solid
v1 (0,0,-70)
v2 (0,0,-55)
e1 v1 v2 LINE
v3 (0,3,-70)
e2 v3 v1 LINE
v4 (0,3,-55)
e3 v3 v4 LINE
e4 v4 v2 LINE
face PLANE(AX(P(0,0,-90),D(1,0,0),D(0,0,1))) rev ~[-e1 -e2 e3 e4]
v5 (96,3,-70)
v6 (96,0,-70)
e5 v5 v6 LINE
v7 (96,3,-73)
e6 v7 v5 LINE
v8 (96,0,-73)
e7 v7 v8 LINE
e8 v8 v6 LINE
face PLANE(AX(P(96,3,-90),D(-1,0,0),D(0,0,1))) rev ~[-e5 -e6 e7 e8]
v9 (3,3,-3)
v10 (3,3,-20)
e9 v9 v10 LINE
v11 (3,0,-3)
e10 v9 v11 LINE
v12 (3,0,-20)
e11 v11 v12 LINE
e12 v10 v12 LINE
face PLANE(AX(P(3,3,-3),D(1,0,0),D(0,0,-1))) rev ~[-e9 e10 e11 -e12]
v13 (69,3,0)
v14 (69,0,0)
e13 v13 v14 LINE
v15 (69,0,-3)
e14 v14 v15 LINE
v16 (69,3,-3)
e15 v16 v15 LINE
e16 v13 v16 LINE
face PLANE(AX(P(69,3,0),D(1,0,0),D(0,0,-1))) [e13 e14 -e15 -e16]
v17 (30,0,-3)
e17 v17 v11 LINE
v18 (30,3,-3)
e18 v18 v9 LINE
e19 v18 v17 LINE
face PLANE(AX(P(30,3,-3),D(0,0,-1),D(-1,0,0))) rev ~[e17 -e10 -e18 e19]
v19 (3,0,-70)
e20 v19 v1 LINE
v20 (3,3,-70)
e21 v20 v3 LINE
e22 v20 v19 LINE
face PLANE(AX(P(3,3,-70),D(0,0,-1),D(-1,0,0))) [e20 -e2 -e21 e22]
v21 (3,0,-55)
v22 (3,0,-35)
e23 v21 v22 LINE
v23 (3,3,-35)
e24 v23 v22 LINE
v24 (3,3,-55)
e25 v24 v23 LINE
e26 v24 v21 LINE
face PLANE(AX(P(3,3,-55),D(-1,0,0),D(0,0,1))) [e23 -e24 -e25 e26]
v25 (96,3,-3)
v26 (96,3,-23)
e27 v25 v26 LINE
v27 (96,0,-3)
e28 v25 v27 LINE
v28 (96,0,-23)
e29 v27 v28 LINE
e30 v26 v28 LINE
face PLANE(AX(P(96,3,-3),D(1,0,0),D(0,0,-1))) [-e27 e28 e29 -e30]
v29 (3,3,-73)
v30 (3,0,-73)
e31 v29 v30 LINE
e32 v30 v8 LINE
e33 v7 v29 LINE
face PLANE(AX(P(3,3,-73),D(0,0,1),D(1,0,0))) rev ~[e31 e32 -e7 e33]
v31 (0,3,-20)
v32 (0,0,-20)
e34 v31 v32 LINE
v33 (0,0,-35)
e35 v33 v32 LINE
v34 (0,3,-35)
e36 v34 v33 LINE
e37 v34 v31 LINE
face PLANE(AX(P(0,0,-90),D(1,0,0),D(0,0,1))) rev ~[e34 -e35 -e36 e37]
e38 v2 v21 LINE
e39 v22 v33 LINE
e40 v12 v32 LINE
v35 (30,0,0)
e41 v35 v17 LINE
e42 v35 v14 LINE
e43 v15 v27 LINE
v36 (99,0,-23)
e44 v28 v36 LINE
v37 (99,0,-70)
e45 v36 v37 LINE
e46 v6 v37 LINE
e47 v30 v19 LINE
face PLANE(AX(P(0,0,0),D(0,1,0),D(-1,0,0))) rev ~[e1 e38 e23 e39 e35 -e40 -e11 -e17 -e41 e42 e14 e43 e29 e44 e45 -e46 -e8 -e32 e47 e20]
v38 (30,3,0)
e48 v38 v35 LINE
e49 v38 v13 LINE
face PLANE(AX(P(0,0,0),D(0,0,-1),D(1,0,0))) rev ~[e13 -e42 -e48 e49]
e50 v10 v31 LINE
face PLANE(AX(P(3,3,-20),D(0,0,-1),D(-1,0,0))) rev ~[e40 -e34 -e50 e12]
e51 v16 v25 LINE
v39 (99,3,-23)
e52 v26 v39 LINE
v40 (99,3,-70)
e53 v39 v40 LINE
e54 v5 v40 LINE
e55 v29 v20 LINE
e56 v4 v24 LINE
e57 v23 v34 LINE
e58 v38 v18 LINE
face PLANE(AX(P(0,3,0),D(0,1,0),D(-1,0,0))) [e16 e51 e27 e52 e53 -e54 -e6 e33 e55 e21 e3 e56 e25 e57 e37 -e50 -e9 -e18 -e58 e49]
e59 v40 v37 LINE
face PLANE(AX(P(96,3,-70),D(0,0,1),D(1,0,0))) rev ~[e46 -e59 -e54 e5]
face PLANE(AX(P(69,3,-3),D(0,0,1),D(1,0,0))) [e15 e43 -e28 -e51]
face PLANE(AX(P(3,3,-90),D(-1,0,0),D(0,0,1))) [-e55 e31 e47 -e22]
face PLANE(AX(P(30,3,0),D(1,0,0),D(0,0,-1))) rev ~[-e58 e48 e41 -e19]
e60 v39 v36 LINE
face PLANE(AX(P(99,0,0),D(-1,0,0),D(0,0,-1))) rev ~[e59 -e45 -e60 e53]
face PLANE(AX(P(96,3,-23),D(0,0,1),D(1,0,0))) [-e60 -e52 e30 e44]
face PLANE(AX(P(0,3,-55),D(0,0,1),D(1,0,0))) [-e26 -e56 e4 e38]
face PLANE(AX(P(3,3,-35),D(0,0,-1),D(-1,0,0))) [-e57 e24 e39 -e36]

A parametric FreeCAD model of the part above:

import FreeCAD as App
import Part
import Sketcher
from FreeCAD import Vector


def add_polygon(sketch, points):
    """Adds a closed chain of lines whose ends are joined by coincident constraints."""
    first, n = sketch.GeometryCount, len(points)
    for a, b in zip(points, points[1:] + points[:1]):
        sketch.addGeometry(Part.LineSegment(App.Vector(*a, 0), App.Vector(*b, 0)), False)
    for i in range(n):
        sketch.addConstraint(Sketcher.Constraint("Coincident", first + i, 2, first + (i + 1) % n, 1))

doc = App.newDocument("Part")
params = doc.addObject("Spreadsheet::Sheet", "Params")
for row, (alias, value) in enumerate([
    ("sketch1_width", "99 mm"),
    ("sketch1_height", "90 mm"),
    ("pad1_length", "3 mm"),
    ("sketch2_width", "30 mm"),
    ("sketch2_width2", "3 mm"),
    ("sketch2_height", "20 mm"),
    ("sketch3_width", "93 mm"),
    ("sketch3_height", "17 mm"),
], start=1):
    params.set(f"A{row}", alias)
    params.set(f"B{row}", "=" + value)
    params.setAlias(f"B{row}", alias)

body = doc.addObject("PartDesign::Body", "Body")

sketch1 = body.newObject("Sketcher::SketchObject", "Sketch")
sketch1.AttachmentSupport = (doc.getObject("XZ_Plane"), [""])
sketch1.MapMode = "FlatFace"
add_polygon(sketch1, [(0, -90), (0, 0), (99, 0), (99, -90)])
sketch1.addConstraint(Sketcher.Constraint("Vertical", 0))
sketch1.addConstraint(Sketcher.Constraint("Horizontal", 1))
sketch1.addConstraint(Sketcher.Constraint("Vertical", 2))
sketch1.addConstraint(Sketcher.Constraint("Horizontal", 3))
sketch1.addConstraint(Sketcher.Constraint("Coincident", 0, 2, -1, 1))
sketch1.addConstraint(Sketcher.Constraint("DistanceX", 1, 1, 1, 2, 99.0))
sketch1.addConstraint(Sketcher.Constraint("DistanceY", 0, 1, 0, 2, 90.0))
sketch1.setExpression("Constraints[9]", "Params.sketch1_width")
sketch1.setExpression("Constraints[10]", "Params.sketch1_height")
pad1 = body.newObject("PartDesign::Pad", "Pad")
pad1.Profile = sketch1
pad1.setExpression("Length", "Params.pad1_length")
pad1.Reversed = True

sketch2 = body.newObject("Sketcher::SketchObject", "Sketch001")
sketch2.AttachmentSupport = (doc.getObject("XZ_Plane"), [""])
sketch2.MapMode = "FlatFace"
sketch2.AttachmentOffset = App.Placement(Vector(0, 0, -3), App.Rotation())
add_polygon(sketch2, [(69, 0), (99, 0), (99, -23), (96, -23), (96, -3), (69, -3)])
add_polygon(sketch2, [(0, 0), (30, 0), (30, -3), (3, -3), (3, -20), (0, -20)])
add_polygon(sketch2, [(96, -70), (99, -70), (99, -90), (96, -90)])
add_polygon(sketch2, [(3, -70), (3, -90), (0, -90), (0, -70)])
add_polygon(sketch2, [(0, -55), (0, -35), (3, -35), (3, -55)])
sketch2.addConstraint(Sketcher.Constraint("Horizontal", 0))
sketch2.addConstraint(Sketcher.Constraint("Vertical", 1))
sketch2.addConstraint(Sketcher.Constraint("Horizontal", 2))
sketch2.addConstraint(Sketcher.Constraint("Vertical", 3))
sketch2.addConstraint(Sketcher.Constraint("Horizontal", 4))
sketch2.addConstraint(Sketcher.Constraint("Vertical", 5))
sketch2.addConstraint(Sketcher.Constraint("Horizontal", 6))
sketch2.addConstraint(Sketcher.Constraint("Vertical", 7))
sketch2.addConstraint(Sketcher.Constraint("Horizontal", 8))
sketch2.addConstraint(Sketcher.Constraint("Vertical", 9))
sketch2.addConstraint(Sketcher.Constraint("Horizontal", 10))
sketch2.addConstraint(Sketcher.Constraint("Vertical", 11))
sketch2.addConstraint(Sketcher.Constraint("Horizontal", 12))
sketch2.addConstraint(Sketcher.Constraint("Vertical", 13))
sketch2.addConstraint(Sketcher.Constraint("Horizontal", 14))
sketch2.addConstraint(Sketcher.Constraint("Vertical", 15))
sketch2.addConstraint(Sketcher.Constraint("Vertical", 16))
sketch2.addConstraint(Sketcher.Constraint("Horizontal", 17))
sketch2.addConstraint(Sketcher.Constraint("Vertical", 18))
sketch2.addConstraint(Sketcher.Constraint("Horizontal", 19))
sketch2.addConstraint(Sketcher.Constraint("Vertical", 20))
sketch2.addConstraint(Sketcher.Constraint("Horizontal", 21))
sketch2.addConstraint(Sketcher.Constraint("Vertical", 22))
sketch2.addConstraint(Sketcher.Constraint("Horizontal", 23))
sketch2.addConstraint(Sketcher.Constraint("Coincident", 11, 2, -1, 1))
sketch2.addConstraint(Sketcher.Constraint("PointOnObject", 0, 2, -1))
sketch2.addConstraint(Sketcher.Constraint("PointOnObject", 17, 2, -2))
sketch2.addConstraint(Sketcher.Constraint("PointOnObject", 20, 2, -2))
sketch2.addConstraint(Sketcher.Constraint("Horizontal", 4, 2, 7, 2))
sketch2.addConstraint(Sketcher.Constraint("Horizontal", 14, 2, 16, 2))
sketch2.addConstraint(Sketcher.Constraint("Horizontal", 15, 2, 18, 2))
sketch2.addConstraint(Sketcher.Constraint("Vertical", 1, 2, 12, 2))
sketch2.addConstraint(Sketcher.Constraint("Vertical", 3, 2, 14, 2))
sketch2.addConstraint(Sketcher.Constraint("Vertical", 9, 2, 16, 2))
sketch2.addConstraint(Sketcher.Constraint("Vertical", 19, 2, 21, 2))
sketch2.addConstraint(Sketcher.Constraint("Equal", 0, 6))
sketch2.addConstraint(Sketcher.Constraint("Equal", 4, 8))
sketch2.addConstraint(Sketcher.Constraint("Equal", 23, 5))
sketch2.addConstraint(Sketcher.Constraint("Equal", 3, 11))
sketch2.addConstraint(Sketcher.Constraint("Equal", 11, 13))
sketch2.addConstraint(Sketcher.Constraint("Equal", 18, 20))
sketch2.addConstraint(Sketcher.Constraint("DistanceX", 0, 1, 0, 2, 30.0))
sketch2.addConstraint(Sketcher.Constraint("DistanceX", 2, 2, 2, 1, 3.0))
sketch2.addConstraint(Sketcher.Constraint("DistanceY", 3, 1, 3, 2, 20.0))
sketch2.addConstraint(Sketcher.Constraint("DistanceY", 20, 2, 10, 2, 15.0))
sketch2.addConstraint(Sketcher.Constraint("DistanceY", 19, 2, 22, 2, 15.0))
sketch2.addConstraint(Sketcher.Constraint("DistanceX", -1, 1, 0, 2, 99.0))
sketch2.setExpression("Constraints[65]", "Params.sketch2_width")
sketch2.setExpression("Constraints[66]", "Params.sketch2_width2")
sketch2.setExpression("Constraints[67]", "Params.sketch2_height")
pocket1 = body.newObject("PartDesign::Pocket", "Pocket")
pocket1.Profile = sketch2
pocket1.Type = "ThroughAll"
pocket1.Reversed = True

sketch3 = body.newObject("Sketcher::SketchObject", "Sketch002")
sketch3.AttachmentSupport = (doc.getObject("XZ_Plane"), [""])
sketch3.MapMode = "FlatFace"
sketch3.AttachmentOffset = App.Placement(Vector(0, 0, -3), App.Rotation())
add_polygon(sketch3, [(3, -73), (96, -73), (96, -90), (3, -90)])
sketch3.addConstraint(Sketcher.Constraint("Horizontal", 0))
sketch3.addConstraint(Sketcher.Constraint("Vertical", 1))
sketch3.addConstraint(Sketcher.Constraint("Horizontal", 2))
sketch3.addConstraint(Sketcher.Constraint("Vertical", 3))
sketch3.addConstraint(Sketcher.Constraint("DistanceX", 0, 1, 0, 2, 93.0))
sketch3.addConstraint(Sketcher.Constraint("DistanceY", 1, 2, 1, 1, 17.0))
sketch3.addConstraint(Sketcher.Constraint("DistanceX", -1, 1, 0, 2, 96.0))
sketch3.addConstraint(Sketcher.Constraint("DistanceY", 0, 2, -1, 1, 73.0))
sketch3.setExpression("Constraints[8]", "Params.sketch3_width")
sketch3.setExpression("Constraints[9]", "Params.sketch3_height")
pocket2 = body.newObject("PartDesign::Pocket", "Pocket001")
pocket2.Profile = sketch3
pocket2.Type = "ThroughAll"
pocket2.Reversed = True

doc.recompute()
